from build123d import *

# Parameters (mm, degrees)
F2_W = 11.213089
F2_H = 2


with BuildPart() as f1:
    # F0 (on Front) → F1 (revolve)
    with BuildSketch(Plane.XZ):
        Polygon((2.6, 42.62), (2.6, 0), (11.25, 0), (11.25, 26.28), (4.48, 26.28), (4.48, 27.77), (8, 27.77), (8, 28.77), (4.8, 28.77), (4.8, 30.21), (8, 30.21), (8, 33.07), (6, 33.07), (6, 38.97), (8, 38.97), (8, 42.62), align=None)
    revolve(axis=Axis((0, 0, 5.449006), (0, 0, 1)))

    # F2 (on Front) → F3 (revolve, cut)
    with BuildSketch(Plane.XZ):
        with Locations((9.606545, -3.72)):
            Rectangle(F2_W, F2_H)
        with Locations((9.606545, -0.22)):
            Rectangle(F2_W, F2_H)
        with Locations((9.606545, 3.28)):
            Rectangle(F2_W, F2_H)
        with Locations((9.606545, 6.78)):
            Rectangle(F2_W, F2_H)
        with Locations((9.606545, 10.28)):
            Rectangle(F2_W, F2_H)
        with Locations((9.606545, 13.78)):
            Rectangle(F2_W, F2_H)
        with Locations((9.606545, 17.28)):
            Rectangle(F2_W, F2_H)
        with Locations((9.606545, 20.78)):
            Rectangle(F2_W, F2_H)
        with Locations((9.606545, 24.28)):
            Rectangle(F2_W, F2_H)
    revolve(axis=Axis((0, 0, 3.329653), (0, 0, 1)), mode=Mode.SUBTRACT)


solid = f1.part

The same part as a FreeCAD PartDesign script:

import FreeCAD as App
import Part
import Sketcher

doc = App.newDocument("Part")
body = doc.addObject("PartDesign::Body", "Body")

sketch1 = body.newObject("Sketcher::SketchObject", "Sketch")
sketch1.AttachmentSupport = (doc.getObject("XZ_Plane"), [""])
sketch1.MapMode = "FlatFace"
sketch1.addGeometry(Part.LineSegment(App.Vector(2.6, 42.6, 0), App.Vector(2.6, 0, 0)), False)
sketch1.addGeometry(Part.LineSegment(App.Vector(2.6, 0, 0), App.Vector(11.2, 0, 0)), False)
sketch1.addGeometry(Part.LineSegment(App.Vector(11.2, 0, 0), App.Vector(11.2, 26.3, 0)), False)
sketch1.addGeometry(Part.LineSegment(App.Vector(11.2, 26.3, 0), App.Vector(4.5, 26.3, 0)), False)
sketch1.addGeometry(Part.LineSegment(App.Vector(4.5, 26.3, 0), App.Vector(4.5, 27.8, 0)), False)
sketch1.addGeometry(Part.LineSegment(App.Vector(4.5, 27.8, 0), App.Vector(8, 27.8, 0)), False)
sketch1.addGeometry(Part.LineSegment(App.Vector(8, 27.8, 0), App.Vector(8, 28.8, 0)), False)
sketch1.addGeometry(Part.LineSegment(App.Vector(8, 28.8, 0), App.Vector(4.8, 28.8, 0)), False)
sketch1.addGeometry(Part.LineSegment(App.Vector(4.8, 28.8, 0), App.Vector(4.8, 30.2, 0)), False)
sketch1.addGeometry(Part.LineSegment(App.Vector(4.8, 30.2, 0), App.Vector(8, 30.2, 0)), False)
sketch1.addGeometry(Part.LineSegment(App.Vector(8, 30.2, 0), App.Vector(8, 33.1, 0)), False)
sketch1.addGeometry(Part.LineSegment(App.Vector(8, 33.1, 0), App.Vector(6, 33.1, 0)), False)
sketch1.addGeometry(Part.LineSegment(App.Vector(6, 33.1, 0), App.Vector(6, 39, 0)), False)
sketch1.addGeometry(Part.LineSegment(App.Vector(6, 39, 0), App.Vector(8, 39, 0)), False)
sketch1.addGeometry(Part.LineSegment(App.Vector(8, 39, 0), App.Vector(8, 42.6, 0)), False)
sketch1.addGeometry(Part.LineSegment(App.Vector(8, 42.6, 0), App.Vector(2.6, 42.6, 0)), False)
sketch1.addConstraint(Sketcher.Constraint("Coincident", 0, 2, 1, 1))
sketch1.addConstraint(Sketcher.Constraint("Coincident", 1, 2, 2, 1))
sketch1.addConstraint(Sketcher.Constraint("Coincident", 2, 2, 3, 1))
sketch1.addConstraint(Sketcher.Constraint("Coincident", 3, 2, 4, 1))
sketch1.addConstraint(Sketcher.Constraint("Coincident", 4, 2, 5, 1))
sketch1.addConstraint(Sketcher.Constraint("Coincident", 5, 2, 6, 1))
sketch1.addConstraint(Sketcher.Constraint("Coincident", 6, 2, 7, 1))
sketch1.addConstraint(Sketcher.Constraint("Coincident", 7, 2, 8, 1))
sketch1.addConstraint(Sketcher.Constraint("Coincident", 8, 2, 9, 1))
sketch1.addConstraint(Sketcher.Constraint("Coincident", 9, 2, 10, 1))
sketch1.addConstraint(Sketcher.Constraint("Coincident", 10, 2, 11, 1))
sketch1.addConstraint(Sketcher.Constraint("Coincident", 11, 2, 12, 1))
sketch1.addConstraint(Sketcher.Constraint("Coincident", 12, 2, 13, 1))
sketch1.addConstraint(Sketcher.Constraint("Coincident", 13, 2, 14, 1))
sketch1.addConstraint(Sketcher.Constraint("Coincident", 14, 2, 15, 1))
sketch1.addConstraint(Sketcher.Constraint("Coincident", 15, 2, 0, 1))
sketch1.addConstraint(Sketcher.Constraint("Vertical", 0))
sketch1.addConstraint(Sketcher.Constraint("Horizontal", 1))
sketch1.addConstraint(Sketcher.Constraint("Vertical", 2))
sketch1.addConstraint(Sketcher.Constraint("Horizontal", 3))
sketch1.addConstraint(Sketcher.Constraint("Vertical", 4))
sketch1.addConstraint(Sketcher.Constraint("Horizontal", 5))
sketch1.addConstraint(Sketcher.Constraint("Vertical", 6))
sketch1.addConstraint(Sketcher.Constraint("Horizontal", 7))
sketch1.addConstraint(Sketcher.Constraint("Vertical", 8))
sketch1.addConstraint(Sketcher.Constraint("Horizontal", 9))
sketch1.addConstraint(Sketcher.Constraint("Vertical", 10))
sketch1.addConstraint(Sketcher.Constraint("Horizontal", 11))
sketch1.addConstraint(Sketcher.Constraint("Vertical", 12))
sketch1.addConstraint(Sketcher.Constraint("Horizontal", 13))
sketch1.addConstraint(Sketcher.Constraint("Vertical", 14))
sketch1.addConstraint(Sketcher.Constraint("Horizontal", 15))
sketch1.addConstraint(Sketcher.Constraint("PointOnObject", 0, 2, -1))
sketch1.addConstraint(Sketcher.Constraint("Vertical", 6, 2, 9, 2))
sketch1.addConstraint(Sketcher.Constraint("Vertical", 10, 2, 13, 2))
sketch1.addConstraint(Sketcher.Constraint("DistanceX", 11, 2, 11, 1, 2.0))
sketch1.addConstraint(Sketcher.Constraint("DistanceY", 6, 1, 6, 2, 1.0))
sketch1.addConstraint(Sketcher.Constraint("DistanceX", 7, 2, 7, 1, 3.2))
sketch1.addConstraint(Sketcher.Constraint("DistanceX", 15, 2, 15, 1, 5.4))
sketch1.addConstraint(Sketcher.Constraint("DistanceY", 12, 1, 12, 2, 5.9))
sketch1.addConstraint(Sketcher.Constraint("DistanceX", -1, 1, 5, 2, 8.0))
sketch1.addConstraint(Sketcher.Constraint("DistanceX", 1, 1, 1, 2, 8.65))
sketch1.addConstraint(Sketcher.Constraint("DistanceX", 3, 2, 3, 1, 6.77))
sketch1.addConstraint(Sketcher.Constraint("DistanceY", 0, 2, 0, 1, 42.62))
sketch1.addConstraint(Sketcher.Constraint("DistanceY", 2, 1, 2, 2, 26.28))
sketch1.addConstraint(Sketcher.Constraint("DistanceY", 4, 1, 4, 2, 1.49))
sketch1.addConstraint(Sketcher.Constraint("DistanceY", 8, 1, 8, 2, 1.44))
sketch1.addConstraint(Sketcher.Constraint("DistanceY", 10, 1, 10, 2, 2.86))
revolution = body.newObject("PartDesign::Revolution", "Revolution")
revolution.Profile = sketch1
revolution.ReferenceAxis = (sketch1, ["V_Axis"])
revolution.Angle = 360

sketch2 = body.newObject("Sketcher::SketchObject", "Sketch001")
sketch2.AttachmentSupport = (doc.getObject("XZ_Plane"), [""])
sketch2.MapMode = "FlatFace"
sketch2.addGeometry(Part.LineSegment(App.Vector(4, -2.7, 0), App.Vector(4, -4.7, 0)), False)
sketch2.addGeometry(Part.LineSegment(App.Vector(4, -4.7, 0), App.Vector(15.2, -4.7, 0)), False)
sketch2.addGeometry(Part.LineSegment(App.Vector(15.2, -4.7, 0), App.Vector(15.2, -2.7, 0)), False)
sketch2.addGeometry(Part.LineSegment(App.Vector(15.2, -2.7, 0), App.Vector(4, -2.7, 0)), False)
sketch2.addGeometry(Part.LineSegment(App.Vector(4, 0.8, 0), App.Vector(4, -1.2, 0)), False)
sketch2.addGeometry(Part.LineSegment(App.Vector(4, -1.2, 0), App.Vector(15.2, -1.2, 0)), False)
sketch2.addGeometry(Part.LineSegment(App.Vector(15.2, -1.2, 0), App.Vector(15.2, 0.8, 0)), False)
sketch2.addGeometry(Part.LineSegment(App.Vector(15.2, 0.8, 0), App.Vector(4, 0.8, 0)), False)
sketch2.addGeometry(Part.LineSegment(App.Vector(4, 4.3, 0), App.Vector(4, 2.3, 0)), False)
sketch2.addGeometry(Part.LineSegment(App.Vector(4, 2.3, 0), App.Vector(15.2, 2.3, 0)), False)
sketch2.addGeometry(Part.LineSegment(App.Vector(15.2, 2.3, 0), App.Vector(15.2, 4.3, 0)), False)
sketch2.addGeometry(Part.LineSegment(App.Vector(15.2, 4.3, 0), App.Vector(4, 4.3, 0)), False)
sketch2.addGeometry(Part.LineSegment(App.Vector(4, 7.8, 0), App.Vector(4, 5.8, 0)), False)
sketch2.addGeometry(Part.LineSegment(App.Vector(4, 5.8, 0), App.Vector(15.2, 5.8, 0)), False)
sketch2.addGeometry(Part.LineSegment(App.Vector(15.2, 5.8, 0), App.Vector(15.2, 7.8, 0)), False)
sketch2.addGeometry(Part.LineSegment(App.Vector(15.2, 7.8, 0), App.Vector(4, 7.8, 0)), False)
sketch2.addGeometry(Part.LineSegment(App.Vector(4, 11.3, 0), App.Vector(4, 9.3, 0)), False)
sketch2.addGeometry(Part.LineSegment(App.Vector(4, 9.3, 0), App.Vector(15.2, 9.3, 0)), False)
sketch2.addGeometry(Part.LineSegment(App.Vector(15.2, 9.3, 0), App.Vector(15.2, 11.3, 0)), False)
sketch2.addGeometry(Part.LineSegment(App.Vector(15.2, 11.3, 0), App.Vector(4, 11.3, 0)), False)
sketch2.addGeometry(Part.LineSegment(App.Vector(4, 14.8, 0), App.Vector(4, 12.8, 0)), False)
sketch2.addGeometry(Part.LineSegment(App.Vector(4, 12.8, 0), App.Vector(15.2, 12.8, 0)), False)
sketch2.addGeometry(Part.LineSegment(App.Vector(15.2, 12.8, 0), App.Vector(15.2, 14.8, 0)), False)
sketch2.addGeometry(Part.LineSegment(App.Vector(15.2, 14.8, 0), App.Vector(4, 14.8, 0)), False)
sketch2.addGeometry(Part.LineSegment(App.Vector(4, 18.3, 0), App.Vector(4, 16.3, 0)), False)
sketch2.addGeometry(Part.LineSegment(App.Vector(4, 16.3, 0), App.Vector(15.2, 16.3, 0)), False)
sketch2.addGeometry(Part.LineSegment(App.Vector(15.2, 16.3, 0), App.Vector(15.2, 18.3, 0)), False)
sketch2.addGeometry(Part.LineSegment(App.Vector(15.2, 18.3, 0), App.Vector(4, 18.3, 0)), False)
sketch2.addGeometry(Part.LineSegment(App.Vector(4, 21.8, 0), App.Vector(4, 19.8, 0)), False)
sketch2.addGeometry(Part.LineSegment(App.Vector(4, 19.8, 0), App.Vector(15.2, 19.8, 0)), False)
sketch2.addGeometry(Part.LineSegment(App.Vector(15.2, 19.8, 0), App.Vector(15.2, 21.8, 0)), False)
sketch2.addGeometry(Part.LineSegment(App.Vector(15.2, 21.8, 0), App.Vector(4, 21.8, 0)), False)
sketch2.addGeometry(Part.LineSegment(App.Vector(4, 25.3, 0), App.Vector(4, 23.3, 0)), False)
sketch2.addGeometry(Part.LineSegment(App.Vector(4, 23.3, 0), App.Vector(15.2, 23.3, 0)), False)
sketch2.addGeometry(Part.LineSegment(App.Vector(15.2, 23.3, 0), App.Vector(15.2, 25.3, 0)), False)
sketch2.addGeometry(Part.LineSegment(App.Vector(15.2, 25.3, 0), App.Vector(4, 25.3, 0)), False)
sketch2.addConstraint(Sketcher.Constraint("Coincident", 0, 2, 1, 1))
sketch2.addConstraint(Sketcher.Constraint("Coincident", 1, 2, 2, 1))
sketch2.addConstraint(Sketcher.Constraint("Coincident", 2, 2, 3, 1))
sketch2.addConstraint(Sketcher.Constraint("Coincident", 3, 2, 0, 1))
sketch2.addConstraint(Sketcher.Constraint("Coincident", 4, 2, 5, 1))
sketch2.addConstraint(Sketcher.Constraint("Coincident", 5, 2, 6, 1))
sketch2.addConstraint(Sketcher.Constraint("Coincident", 6, 2, 7, 1))
sketch2.addConstraint(Sketcher.Constraint("Coincident", 7, 2, 4, 1))
sketch2.addConstraint(Sketcher.Constraint("Coincident", 8, 2, 9, 1))
sketch2.addConstraint(Sketcher.Constraint("Coincident", 9, 2, 10, 1))
sketch2.addConstraint(Sketcher.Constraint("Coincident", 10, 2, 11, 1))
sketch2.addConstraint(Sketcher.Constraint("Coincident", 11, 2, 8, 1))
sketch2.addConstraint(Sketcher.Constraint("Coincident", 12, 2, 13, 1))
sketch2.addConstraint(Sketcher.Constraint("Coincident", 13, 2, 14, 1))
sketch2.addConstraint(Sketcher.Constraint("Coincident", 14, 2, 15, 1))
sketch2.addConstraint(Sketcher.Constraint("Coincident", 15, 2, 12, 1))
sketch2.addConstraint(Sketcher.Constraint("Coincident", 16, 2, 17, 1))
sketch2.addConstraint(Sketcher.Constraint("Coincident", 17, 2, 18, 1))
sketch2.addConstraint(Sketcher.Constraint("Coincident", 18, 2, 19, 1))
sketch2.addConstraint(Sketcher.Constraint("Coincident", 19, 2, 16, 1))
sketch2.addConstraint(Sketcher.Constraint("Coincident", 20, 2, 21, 1))
sketch2.addConstraint(Sketcher.Constraint("Coincident", 21, 2, 22, 1))
sketch2.addConstraint(Sketcher.Constraint("Coincident", 22, 2, 23, 1))
sketch2.addConstraint(Sketcher.Constraint("Coincident", 23, 2, 20, 1))
sketch2.addConstraint(Sketcher.Constraint("Coincident", 24, 2, 25, 1))
sketch2.addConstraint(Sketcher.Constraint("Coincident", 25, 2, 26, 1))
sketch2.addConstraint(Sketcher.Constraint("Coincident", 26, 2, 27, 1))
sketch2.addConstraint(Sketcher.Constraint("Coincident", 27, 2, 24, 1))
sketch2.addConstraint(Sketcher.Constraint("Coincident", 28, 2, 29, 1))
sketch2.addConstraint(Sketcher.Constraint("Coincident", 29, 2, 30, 1))
sketch2.addConstraint(Sketcher.Constraint("Coincident", 30, 2, 31, 1))
sketch2.addConstraint(Sketcher.Constraint("Coincident", 31, 2, 28, 1))
sketch2.addConstraint(Sketcher.Constraint("Coincident", 32, 2, 33, 1))
sketch2.addConstraint(Sketcher.Constraint("Coincident", 33, 2, 34, 1))
sketch2.addConstraint(Sketcher.Constraint("Coincident", 34, 2, 35, 1))
sketch2.addConstraint(Sketcher.Constraint("Coincident", 35, 2, 32, 1))
sketch2.addConstraint(Sketcher.Constraint("Vertical", 0))
sketch2.addConstraint(Sketcher.Constraint("Horizontal", 1))
sketch2.addConstraint(Sketcher.Constraint("Vertical", 2))
sketch2.addConstraint(Sketcher.Constraint("Horizontal", 3))
sketch2.addConstraint(Sketcher.Constraint("Vertical", 4))
sketch2.addConstraint(Sketcher.Constraint("Horizontal", 5))
sketch2.addConstraint(Sketcher.Constraint("Vertical", 6))
sketch2.addConstraint(Sketcher.Constraint("Horizontal", 7))
sketch2.addConstraint(Sketcher.Constraint("Vertical", 8))
sketch2.addConstraint(Sketcher.Constraint("Horizontal", 9))
sketch2.addConstraint(Sketcher.Constraint("Vertical", 10))
sketch2.addConstraint(Sketcher.Constraint("Horizontal", 11))
sketch2.addConstraint(Sketcher.Constraint("Vertical", 12))
sketch2.addConstraint(Sketcher.Constraint("Horizontal", 13))
sketch2.addConstraint(Sketcher.Constraint("Vertical", 14))
sketch2.addConstraint(Sketcher.Constraint("Horizontal", 15))
sketch2.addConstraint(Sketcher.Constraint("Vertical", 16))
sketch2.addConstraint(Sketcher.Constraint("Horizontal", 17))
sketch2.addConstraint(Sketcher.Constraint("Vertical", 18))
sketch2.addConstraint(Sketcher.Constraint("Horizontal", 19))
sketch2.addConstraint(Sketcher.Constraint("Vertical", 20))
sketch2.addConstraint(Sketcher.Constraint("Horizontal", 21))
sketch2.addConstraint(Sketcher.Constraint("Vertical", 22))
sketch2.addConstraint(Sketcher.Constraint("Horizontal", 23))
sketch2.addConstraint(Sketcher.Constraint("Vertical", 24))
sketch2.addConstraint(Sketcher.Constraint("Horizontal", 25))
sketch2.addConstraint(Sketcher.Constraint("Vertical", 26))
sketch2.addConstraint(Sketcher.Constraint("Horizontal", 27))
sketch2.addConstraint(Sketcher.Constraint("Vertical", 28))
sketch2.addConstraint(Sketcher.Constraint("Horizontal", 29))
sketch2.addConstraint(Sketcher.Constraint("Vertical", 30))
sketch2.addConstraint(Sketcher.Constraint("Horizontal", 31))
sketch2.addConstraint(Sketcher.Constraint("Vertical", 32))
sketch2.addConstraint(Sketcher.Constraint("Horizontal", 33))
sketch2.addConstraint(Sketcher.Constraint("Vertical", 34))
sketch2.addConstraint(Sketcher.Constraint("Horizontal", 35))
sketch2.addConstraint(Sketcher.Constraint("Vertical", 3, 2, 4, 2))
sketch2.addConstraint(Sketcher.Constraint("Vertical", 2, 2, 5, 2))
sketch2.addConstraint(Sketcher.Constraint("Vertical", 7, 2, 8, 2))
sketch2.addConstraint(Sketcher.Constraint("Vertical", 6, 2, 9, 2))
sketch2.addConstraint(Sketcher.Constraint("Vertical", 11, 2, 12, 2))
sketch2.addConstraint(Sketcher.Constraint("Vertical", 10, 2, 13, 2))
sketch2.addConstraint(Sketcher.Constraint("Vertical", 15, 2, 16, 2))
sketch2.addConstraint(Sketcher.Constraint("Vertical", 14, 2, 17, 2))
sketch2.addConstraint(Sketcher.Constraint("Vertical", 19, 2, 20, 2))
sketch2.addConstraint(Sketcher.Constraint("Vertical", 18, 2, 21, 2))
sketch2.addConstraint(Sketcher.Constraint("Vertical", 23, 2, 24, 2))
sketch2.addConstraint(Sketcher.Constraint("Vertical", 22, 2, 25, 2))
sketch2.addConstraint(Sketcher.Constraint("Vertical", 27, 2, 28, 2))
sketch2.addConstraint(Sketcher.Constraint("Vertical", 26, 2, 29, 2))
sketch2.addConstraint(Sketcher.Constraint("Vertical", 31, 2, 32, 2))
sketch2.addConstraint(Sketcher.Constraint("Vertical", 30, 2, 33, 2))
sketch2.addConstraint(Sketcher.Constraint("Equal", 2, 4))
sketch2.addConstraint(Sketcher.Constraint("Equal", 6, 8))
sketch2.addConstraint(Sketcher.Constraint("Equal", 10, 12))
sketch2.addConstraint(Sketcher.Constraint("Equal", 14, 16))
sketch2.addConstraint(Sketcher.Constraint("Equal", 18, 20))
sketch2.addConstraint(Sketcher.Constraint("Equal", 22, 24))
sketch2.addConstraint(Sketcher.Constraint("Equal", 26, 28))
sketch2.addConstraint(Sketcher.Constraint("Equal", 30, 32))
sketch2.addConstraint(Sketcher.Constraint("DistanceY", 0, 2, 0, 1, 2.0))
sketch2.addConstraint(Sketcher.Constraint("DistanceX", -1, 1, 0, 2, 4.0))
sketch2.addConstraint(Sketcher.Constraint("DistanceY", 3, 2, 8, 2, 5.0))
sketch2.addConstraint(Sketcher.Constraint("DistanceY", 7, 2, 12, 2, 5.0))
sketch2.addConstraint(Sketcher.Constraint("DistanceY", 11, 2, 16, 2, 5.0))
sketch2.addConstraint(Sketcher.Constraint("DistanceY", 15, 2, 20, 2, 5.0))
sketch2.addConstraint(Sketcher.Constraint("DistanceY", 19, 2, 24, 2, 5.0))
sketch2.addConstraint(Sketcher.Constraint("DistanceY", 23, 2, 28, 2, 5.0))
sketch2.addConstraint(Sketcher.Constraint("DistanceY", 27, 2, 32, 2, 5.0))
sketch2.addConstraint(Sketcher.Constraint("DistanceY", 3, 2, 4, 2, 1.5))
sketch2.addConstraint(Sketcher.Constraint("DistanceY", 0, 2, -1, 1, 4.72))
sketch2.addConstraint(Sketcher.Constraint("DistanceX", 1, 1, 1, 2, 11.213089))
groove = body.newObject("PartDesign::Groove", "Groove")
groove.Profile = sketch2
groove.ReferenceAxis = (sketch2, ["V_Axis"])
groove.Angle = 360

doc.recompute()
